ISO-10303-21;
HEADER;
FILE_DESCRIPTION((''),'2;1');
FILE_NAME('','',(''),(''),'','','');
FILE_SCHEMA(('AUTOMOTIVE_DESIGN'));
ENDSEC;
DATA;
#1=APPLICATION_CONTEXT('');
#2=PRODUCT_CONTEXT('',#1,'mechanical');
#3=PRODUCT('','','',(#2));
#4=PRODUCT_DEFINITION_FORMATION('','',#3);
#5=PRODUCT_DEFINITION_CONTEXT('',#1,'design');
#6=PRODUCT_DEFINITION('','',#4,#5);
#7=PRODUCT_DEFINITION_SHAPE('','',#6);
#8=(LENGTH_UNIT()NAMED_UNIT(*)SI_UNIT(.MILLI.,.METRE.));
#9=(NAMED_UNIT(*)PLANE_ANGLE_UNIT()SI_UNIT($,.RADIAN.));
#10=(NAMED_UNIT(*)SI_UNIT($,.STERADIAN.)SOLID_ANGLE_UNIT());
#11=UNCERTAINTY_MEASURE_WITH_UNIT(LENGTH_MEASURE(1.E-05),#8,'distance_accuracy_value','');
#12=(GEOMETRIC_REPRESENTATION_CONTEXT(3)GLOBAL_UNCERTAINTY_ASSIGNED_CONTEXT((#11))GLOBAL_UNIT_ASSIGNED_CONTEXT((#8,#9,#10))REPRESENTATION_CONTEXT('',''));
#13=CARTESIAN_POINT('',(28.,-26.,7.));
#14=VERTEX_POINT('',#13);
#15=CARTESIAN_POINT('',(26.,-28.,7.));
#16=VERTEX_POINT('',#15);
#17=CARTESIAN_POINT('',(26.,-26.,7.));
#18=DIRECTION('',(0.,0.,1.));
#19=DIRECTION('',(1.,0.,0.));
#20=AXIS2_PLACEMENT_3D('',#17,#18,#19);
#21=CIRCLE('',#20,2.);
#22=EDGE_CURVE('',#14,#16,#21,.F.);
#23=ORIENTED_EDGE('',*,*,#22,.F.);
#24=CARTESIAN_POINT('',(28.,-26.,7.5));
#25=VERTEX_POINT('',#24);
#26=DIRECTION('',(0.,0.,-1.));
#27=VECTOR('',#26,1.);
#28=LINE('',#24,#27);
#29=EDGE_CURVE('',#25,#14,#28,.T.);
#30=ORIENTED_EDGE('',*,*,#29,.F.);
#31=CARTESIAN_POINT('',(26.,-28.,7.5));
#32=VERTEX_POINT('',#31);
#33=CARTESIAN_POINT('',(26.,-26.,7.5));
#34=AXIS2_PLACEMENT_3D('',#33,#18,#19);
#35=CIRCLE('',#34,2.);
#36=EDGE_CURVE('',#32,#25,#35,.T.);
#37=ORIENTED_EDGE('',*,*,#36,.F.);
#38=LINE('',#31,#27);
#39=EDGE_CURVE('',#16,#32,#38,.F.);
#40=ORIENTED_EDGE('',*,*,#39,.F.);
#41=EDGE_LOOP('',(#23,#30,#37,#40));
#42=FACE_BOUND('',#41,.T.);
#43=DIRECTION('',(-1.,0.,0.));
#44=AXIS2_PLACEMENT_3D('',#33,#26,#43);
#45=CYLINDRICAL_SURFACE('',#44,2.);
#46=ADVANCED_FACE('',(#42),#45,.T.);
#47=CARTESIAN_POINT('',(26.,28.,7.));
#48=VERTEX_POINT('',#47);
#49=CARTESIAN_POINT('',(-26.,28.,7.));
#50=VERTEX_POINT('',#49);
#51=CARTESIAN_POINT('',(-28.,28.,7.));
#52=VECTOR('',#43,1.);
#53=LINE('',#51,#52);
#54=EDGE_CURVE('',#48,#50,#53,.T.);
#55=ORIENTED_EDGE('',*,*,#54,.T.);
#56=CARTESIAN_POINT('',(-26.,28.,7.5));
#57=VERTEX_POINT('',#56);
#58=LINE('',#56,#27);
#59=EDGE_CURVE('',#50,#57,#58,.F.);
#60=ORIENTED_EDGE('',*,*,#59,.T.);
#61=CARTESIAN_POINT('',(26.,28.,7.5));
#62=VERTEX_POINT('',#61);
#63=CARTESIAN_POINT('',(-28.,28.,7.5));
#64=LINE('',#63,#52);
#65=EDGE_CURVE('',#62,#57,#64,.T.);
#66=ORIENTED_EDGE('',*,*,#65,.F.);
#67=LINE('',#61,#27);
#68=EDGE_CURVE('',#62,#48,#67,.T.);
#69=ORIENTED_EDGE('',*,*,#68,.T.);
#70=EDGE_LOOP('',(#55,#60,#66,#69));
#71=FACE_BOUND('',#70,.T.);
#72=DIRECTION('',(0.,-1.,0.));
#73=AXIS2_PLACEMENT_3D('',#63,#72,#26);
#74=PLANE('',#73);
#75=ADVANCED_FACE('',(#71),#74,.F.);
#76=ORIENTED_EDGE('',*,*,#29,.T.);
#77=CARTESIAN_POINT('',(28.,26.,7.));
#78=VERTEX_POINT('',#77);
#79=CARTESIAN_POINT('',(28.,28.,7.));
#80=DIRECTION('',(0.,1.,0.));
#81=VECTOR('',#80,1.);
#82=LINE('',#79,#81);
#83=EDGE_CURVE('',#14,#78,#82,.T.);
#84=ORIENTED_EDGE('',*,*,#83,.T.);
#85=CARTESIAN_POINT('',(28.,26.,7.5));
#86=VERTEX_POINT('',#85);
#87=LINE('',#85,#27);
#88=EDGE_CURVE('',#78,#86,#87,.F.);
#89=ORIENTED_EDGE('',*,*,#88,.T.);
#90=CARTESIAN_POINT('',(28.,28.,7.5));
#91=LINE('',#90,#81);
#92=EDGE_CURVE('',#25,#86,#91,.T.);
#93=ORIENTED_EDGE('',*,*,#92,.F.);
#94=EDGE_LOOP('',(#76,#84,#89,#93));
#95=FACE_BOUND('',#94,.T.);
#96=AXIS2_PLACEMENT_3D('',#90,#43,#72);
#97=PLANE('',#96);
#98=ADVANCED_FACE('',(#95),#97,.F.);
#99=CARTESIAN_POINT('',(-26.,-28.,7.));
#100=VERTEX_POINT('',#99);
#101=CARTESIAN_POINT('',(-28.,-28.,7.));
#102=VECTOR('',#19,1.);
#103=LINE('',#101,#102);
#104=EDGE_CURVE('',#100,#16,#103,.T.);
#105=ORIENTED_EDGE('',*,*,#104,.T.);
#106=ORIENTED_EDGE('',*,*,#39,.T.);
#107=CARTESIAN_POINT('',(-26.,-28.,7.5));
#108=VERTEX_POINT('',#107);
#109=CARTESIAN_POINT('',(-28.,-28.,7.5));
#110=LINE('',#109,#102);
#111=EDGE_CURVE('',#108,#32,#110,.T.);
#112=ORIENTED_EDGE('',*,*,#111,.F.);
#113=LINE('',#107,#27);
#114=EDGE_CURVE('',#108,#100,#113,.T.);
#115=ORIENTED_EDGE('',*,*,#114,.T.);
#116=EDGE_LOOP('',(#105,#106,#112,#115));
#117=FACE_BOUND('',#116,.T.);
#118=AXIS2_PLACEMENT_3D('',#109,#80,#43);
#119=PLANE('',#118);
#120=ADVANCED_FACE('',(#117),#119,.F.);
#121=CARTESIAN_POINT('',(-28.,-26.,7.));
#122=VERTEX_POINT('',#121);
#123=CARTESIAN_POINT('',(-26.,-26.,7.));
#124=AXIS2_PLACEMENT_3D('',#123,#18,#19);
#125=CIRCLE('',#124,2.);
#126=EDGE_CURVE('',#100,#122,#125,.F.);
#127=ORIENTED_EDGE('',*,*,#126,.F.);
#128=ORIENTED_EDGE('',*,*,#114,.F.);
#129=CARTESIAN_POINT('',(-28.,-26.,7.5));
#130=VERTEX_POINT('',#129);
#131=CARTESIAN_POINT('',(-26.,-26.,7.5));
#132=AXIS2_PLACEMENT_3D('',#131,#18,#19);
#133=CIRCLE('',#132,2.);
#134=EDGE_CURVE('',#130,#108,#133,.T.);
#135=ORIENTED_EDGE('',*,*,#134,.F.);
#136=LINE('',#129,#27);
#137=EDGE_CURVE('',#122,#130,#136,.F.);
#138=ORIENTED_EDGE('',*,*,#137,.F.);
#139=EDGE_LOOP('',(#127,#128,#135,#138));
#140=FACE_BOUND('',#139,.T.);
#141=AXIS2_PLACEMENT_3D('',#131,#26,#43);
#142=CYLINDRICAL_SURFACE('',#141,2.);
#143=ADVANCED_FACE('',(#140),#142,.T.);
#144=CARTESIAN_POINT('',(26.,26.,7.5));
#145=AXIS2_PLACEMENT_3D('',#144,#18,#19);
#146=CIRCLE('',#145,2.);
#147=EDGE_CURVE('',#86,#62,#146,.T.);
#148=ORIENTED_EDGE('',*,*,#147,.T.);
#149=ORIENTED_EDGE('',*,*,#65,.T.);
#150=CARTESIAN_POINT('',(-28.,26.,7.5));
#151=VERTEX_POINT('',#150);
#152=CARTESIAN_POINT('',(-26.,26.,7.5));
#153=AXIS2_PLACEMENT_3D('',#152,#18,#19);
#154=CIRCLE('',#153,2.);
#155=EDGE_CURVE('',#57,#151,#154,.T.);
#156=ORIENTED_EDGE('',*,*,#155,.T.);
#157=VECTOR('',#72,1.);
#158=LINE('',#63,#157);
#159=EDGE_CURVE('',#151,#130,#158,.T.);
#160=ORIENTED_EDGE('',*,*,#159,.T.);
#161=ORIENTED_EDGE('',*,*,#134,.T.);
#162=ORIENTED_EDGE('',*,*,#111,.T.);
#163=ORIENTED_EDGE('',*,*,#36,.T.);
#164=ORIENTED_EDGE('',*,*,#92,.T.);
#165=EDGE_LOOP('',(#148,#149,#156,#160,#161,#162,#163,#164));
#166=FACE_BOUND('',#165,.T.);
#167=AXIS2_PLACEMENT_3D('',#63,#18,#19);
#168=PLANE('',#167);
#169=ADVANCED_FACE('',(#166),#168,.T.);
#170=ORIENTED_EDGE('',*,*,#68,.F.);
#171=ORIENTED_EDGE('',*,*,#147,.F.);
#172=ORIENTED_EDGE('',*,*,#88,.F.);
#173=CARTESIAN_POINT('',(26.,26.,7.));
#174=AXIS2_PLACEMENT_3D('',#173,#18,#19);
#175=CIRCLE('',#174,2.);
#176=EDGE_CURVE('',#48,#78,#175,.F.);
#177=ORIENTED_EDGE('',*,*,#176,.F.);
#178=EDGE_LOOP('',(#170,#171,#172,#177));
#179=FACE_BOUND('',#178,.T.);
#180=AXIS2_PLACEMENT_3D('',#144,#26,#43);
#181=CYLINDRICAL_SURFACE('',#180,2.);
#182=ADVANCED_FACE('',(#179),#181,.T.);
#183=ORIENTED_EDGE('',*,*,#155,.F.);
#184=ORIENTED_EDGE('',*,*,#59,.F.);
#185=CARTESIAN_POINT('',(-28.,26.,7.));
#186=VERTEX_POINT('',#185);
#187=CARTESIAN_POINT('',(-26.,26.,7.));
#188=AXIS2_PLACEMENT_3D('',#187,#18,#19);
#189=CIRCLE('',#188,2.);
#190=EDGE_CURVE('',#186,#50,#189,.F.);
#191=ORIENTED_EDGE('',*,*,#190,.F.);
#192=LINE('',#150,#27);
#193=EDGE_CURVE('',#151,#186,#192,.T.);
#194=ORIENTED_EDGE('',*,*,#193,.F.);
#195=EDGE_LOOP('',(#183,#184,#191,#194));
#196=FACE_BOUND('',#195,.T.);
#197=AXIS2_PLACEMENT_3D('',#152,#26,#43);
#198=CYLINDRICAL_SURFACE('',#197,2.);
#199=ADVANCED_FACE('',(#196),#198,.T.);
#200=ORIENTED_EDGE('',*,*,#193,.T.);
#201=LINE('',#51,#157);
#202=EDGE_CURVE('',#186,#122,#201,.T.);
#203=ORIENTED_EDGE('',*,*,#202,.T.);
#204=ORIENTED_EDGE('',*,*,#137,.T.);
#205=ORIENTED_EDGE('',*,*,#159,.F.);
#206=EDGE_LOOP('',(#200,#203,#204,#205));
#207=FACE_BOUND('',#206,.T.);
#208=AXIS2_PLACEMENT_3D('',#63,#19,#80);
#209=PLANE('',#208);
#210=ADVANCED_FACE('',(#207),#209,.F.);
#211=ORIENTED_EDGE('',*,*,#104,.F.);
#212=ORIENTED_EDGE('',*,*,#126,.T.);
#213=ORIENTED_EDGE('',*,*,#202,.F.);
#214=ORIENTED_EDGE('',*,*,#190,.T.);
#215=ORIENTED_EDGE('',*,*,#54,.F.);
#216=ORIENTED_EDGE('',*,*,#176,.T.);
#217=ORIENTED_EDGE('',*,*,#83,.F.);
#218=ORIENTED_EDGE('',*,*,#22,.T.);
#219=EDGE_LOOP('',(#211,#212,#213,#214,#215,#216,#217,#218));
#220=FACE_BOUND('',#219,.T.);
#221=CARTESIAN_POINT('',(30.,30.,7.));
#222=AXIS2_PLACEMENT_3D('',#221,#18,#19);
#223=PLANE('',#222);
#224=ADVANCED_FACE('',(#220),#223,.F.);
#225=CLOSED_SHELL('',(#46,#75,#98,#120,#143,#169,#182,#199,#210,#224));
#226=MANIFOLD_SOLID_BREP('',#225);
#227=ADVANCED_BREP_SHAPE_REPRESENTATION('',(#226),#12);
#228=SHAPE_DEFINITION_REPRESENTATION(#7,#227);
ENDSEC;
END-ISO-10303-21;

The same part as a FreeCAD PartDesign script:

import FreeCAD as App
import Part
import Sketcher


def edges_at(feature, points):
    """Names of the edges that pass closest to the given points."""
    edges = feature.Shape.Edges
    near = lambda p: min(range(len(edges)), key=lambda i: edges[i].distToShape(Part.Vertex(*p))[0])
    return sorted({f"Edge{near(p) + 1}" for p in points})

doc = App.newDocument("Part")
params = doc.addObject("Spreadsheet::Sheet", "Params")
for row, (alias, value) in enumerate([
    ("sketch1_width", "60 mm"),
    ("pad1_length", "7 mm"),
    ("sketch2_width", "56 mm"),
    ("pad2_length", "0.5 mm"),
    ("fillet_radius", "2 mm"),
    ("sketch3_width", "60 mm"),
    ("pocket1_length", "7 mm"),
], start=1):
    params.set(f"A{row}", alias)
    params.set(f"B{row}", "=" + value)
    params.setAlias(f"B{row}", alias)

body = doc.addObject("PartDesign::Body", "Body")

# Sketch on XY plane
sketch1 = body.newObject("Sketcher::SketchObject", "Sketch")
sketch1.AttachmentSupport = (doc.getObject("XY_Plane"), [""])
sketch1.MapMode = "FlatFace"
sketch1.addGeometry([
    Part.LineSegment(App.Vector(-30, 30, 0), App.Vector(-30, -30, 0)),
    Part.LineSegment(App.Vector(-30, -30, 0), App.Vector(30, -30, 0)),
    Part.LineSegment(App.Vector(30, -30, 0), App.Vector(30, 30, 0)),
    Part.LineSegment(App.Vector(30, 30, 0), App.Vector(-30, 30, 0)),
], False)
sketch1.addConstraint([
    Sketcher.Constraint("Coincident", 0, 2, 1, 1),
    Sketcher.Constraint("Coincident", 1, 2, 2, 1),
    Sketcher.Constraint("Coincident", 2, 2, 3, 1),
    Sketcher.Constraint("Coincident", 3, 2, 0, 1),
    Sketcher.Constraint("Vertical", 0),
    Sketcher.Constraint("Horizontal", 1),
    Sketcher.Constraint("Vertical", 2),
    Sketcher.Constraint("Horizontal", 3),
    Sketcher.Constraint("Symmetric", 0, 2, 2, 2, -1, 1),
    Sketcher.Constraint("Equal", 3, 0),
    Sketcher.Constraint("DistanceX", 1, 1, 1, 2, 60.0),
])
sketch1.setExpression("Constraints[10]", "Params.sketch1_width")
pad1 = body.newObject("PartDesign::Pad", "Pad")
pad1.Profile = sketch1
pad1.setExpression("Length", "Params.pad1_length")

# Sketch on XY plane
sketch2 = body.newObject("Sketcher::SketchObject", "Sketch001")
sketch2.AttachmentSupport = (doc.getObject("XY_Plane"), [""])
sketch2.MapMode = "FlatFace"
sketch2.AttachmentOffset = App.Placement(App.Vector(0, 0, 7), App.Rotation())
sketch2.addGeometry([
    Part.LineSegment(App.Vector(-28, 28, 0), App.Vector(-28, -28, 0)),
    Part.LineSegment(App.Vector(-28, -28, 0), App.Vector(28, -28, 0)),
    Part.LineSegment(App.Vector(28, -28, 0), App.Vector(28, 28, 0)),
    Part.LineSegment(App.Vector(28, 28, 0), App.Vector(-28, 28, 0)),
], False)
sketch2.addConstraint([
    Sketcher.Constraint("Coincident", 0, 2, 1, 1),
    Sketcher.Constraint("Coincident", 1, 2, 2, 1),
    Sketcher.Constraint("Coincident", 2, 2, 3, 1),
    Sketcher.Constraint("Coincident", 3, 2, 0, 1),
    Sketcher.Constraint("Vertical", 0),
    Sketcher.Constraint("Horizontal", 1),
    Sketcher.Constraint("Vertical", 2),
    Sketcher.Constraint("Horizontal", 3),
    Sketcher.Constraint("Symmetric", 0, 2, 2, 2, -1, 1),
    Sketcher.Constraint("Equal", 3, 0),
    Sketcher.Constraint("DistanceX", 1, 1, 1, 2, 56.0),
])
sketch2.setExpression("Constraints[10]", "Params.sketch2_width")
pad2 = body.newObject("PartDesign::Pad", "Pad001")
pad2.Profile = sketch2
pad2.setExpression("Length", "Params.pad2_length")
doc.recompute()

fillet = body.newObject("PartDesign::Fillet", "Fillet")
fillet.Base = (pad2, edges_at(pad2, [
    (-28, 28, 7.25),
    (28, 28, 7.25),
    (28, -28, 7.25),
    (-28, -28, 7.25),
]))
fillet.setExpression("Radius", "Params.fillet_radius")

# Sketch on XY plane
sketch3 = body.newObject("Sketcher::SketchObject", "Sketch002")
sketch3.AttachmentSupport = (doc.getObject("XY_Plane"), [""])
sketch3.MapMode = "FlatFace"
sketch3.addGeometry([
    Part.LineSegment(App.Vector(30, 30, 0), App.Vector(30, -30, 0)),
    Part.LineSegment(App.Vector(30, -30, 0), App.Vector(-30, -30, 0)),
    Part.LineSegment(App.Vector(-30, -30, 0), App.Vector(-30, 30, 0)),
    Part.LineSegment(App.Vector(-30, 30, 0), App.Vector(30, 30, 0)),
], False)
sketch3.addConstraint([
    Sketcher.Constraint("Coincident", 0, 2, 1, 1),
    Sketcher.Constraint("Coincident", 1, 2, 2, 1),
    Sketcher.Constraint("Coincident", 2, 2, 3, 1),
    Sketcher.Constraint("Coincident", 3, 2, 0, 1),
    Sketcher.Constraint("Vertical", 0),
    Sketcher.Constraint("Horizontal", 1),
    Sketcher.Constraint("Vertical", 2),
    Sketcher.Constraint("Horizontal", 3),
    Sketcher.Constraint("Symmetric", 0, 2, 2, 2, -1, 1),
    Sketcher.Constraint("Equal", 3, 0),
    Sketcher.Constraint("DistanceX", 1, 2, 1, 1, 60.0),
])
sketch3.setExpression("Constraints[10]", "Params.sketch3_width")
pocket1 = body.newObject("PartDesign::Pocket", "Pocket")
pocket1.Profile = sketch3
pocket1.setExpression("Length", "Params.pocket1_length")
pocket1.Reversed = True

doc.recompute()
